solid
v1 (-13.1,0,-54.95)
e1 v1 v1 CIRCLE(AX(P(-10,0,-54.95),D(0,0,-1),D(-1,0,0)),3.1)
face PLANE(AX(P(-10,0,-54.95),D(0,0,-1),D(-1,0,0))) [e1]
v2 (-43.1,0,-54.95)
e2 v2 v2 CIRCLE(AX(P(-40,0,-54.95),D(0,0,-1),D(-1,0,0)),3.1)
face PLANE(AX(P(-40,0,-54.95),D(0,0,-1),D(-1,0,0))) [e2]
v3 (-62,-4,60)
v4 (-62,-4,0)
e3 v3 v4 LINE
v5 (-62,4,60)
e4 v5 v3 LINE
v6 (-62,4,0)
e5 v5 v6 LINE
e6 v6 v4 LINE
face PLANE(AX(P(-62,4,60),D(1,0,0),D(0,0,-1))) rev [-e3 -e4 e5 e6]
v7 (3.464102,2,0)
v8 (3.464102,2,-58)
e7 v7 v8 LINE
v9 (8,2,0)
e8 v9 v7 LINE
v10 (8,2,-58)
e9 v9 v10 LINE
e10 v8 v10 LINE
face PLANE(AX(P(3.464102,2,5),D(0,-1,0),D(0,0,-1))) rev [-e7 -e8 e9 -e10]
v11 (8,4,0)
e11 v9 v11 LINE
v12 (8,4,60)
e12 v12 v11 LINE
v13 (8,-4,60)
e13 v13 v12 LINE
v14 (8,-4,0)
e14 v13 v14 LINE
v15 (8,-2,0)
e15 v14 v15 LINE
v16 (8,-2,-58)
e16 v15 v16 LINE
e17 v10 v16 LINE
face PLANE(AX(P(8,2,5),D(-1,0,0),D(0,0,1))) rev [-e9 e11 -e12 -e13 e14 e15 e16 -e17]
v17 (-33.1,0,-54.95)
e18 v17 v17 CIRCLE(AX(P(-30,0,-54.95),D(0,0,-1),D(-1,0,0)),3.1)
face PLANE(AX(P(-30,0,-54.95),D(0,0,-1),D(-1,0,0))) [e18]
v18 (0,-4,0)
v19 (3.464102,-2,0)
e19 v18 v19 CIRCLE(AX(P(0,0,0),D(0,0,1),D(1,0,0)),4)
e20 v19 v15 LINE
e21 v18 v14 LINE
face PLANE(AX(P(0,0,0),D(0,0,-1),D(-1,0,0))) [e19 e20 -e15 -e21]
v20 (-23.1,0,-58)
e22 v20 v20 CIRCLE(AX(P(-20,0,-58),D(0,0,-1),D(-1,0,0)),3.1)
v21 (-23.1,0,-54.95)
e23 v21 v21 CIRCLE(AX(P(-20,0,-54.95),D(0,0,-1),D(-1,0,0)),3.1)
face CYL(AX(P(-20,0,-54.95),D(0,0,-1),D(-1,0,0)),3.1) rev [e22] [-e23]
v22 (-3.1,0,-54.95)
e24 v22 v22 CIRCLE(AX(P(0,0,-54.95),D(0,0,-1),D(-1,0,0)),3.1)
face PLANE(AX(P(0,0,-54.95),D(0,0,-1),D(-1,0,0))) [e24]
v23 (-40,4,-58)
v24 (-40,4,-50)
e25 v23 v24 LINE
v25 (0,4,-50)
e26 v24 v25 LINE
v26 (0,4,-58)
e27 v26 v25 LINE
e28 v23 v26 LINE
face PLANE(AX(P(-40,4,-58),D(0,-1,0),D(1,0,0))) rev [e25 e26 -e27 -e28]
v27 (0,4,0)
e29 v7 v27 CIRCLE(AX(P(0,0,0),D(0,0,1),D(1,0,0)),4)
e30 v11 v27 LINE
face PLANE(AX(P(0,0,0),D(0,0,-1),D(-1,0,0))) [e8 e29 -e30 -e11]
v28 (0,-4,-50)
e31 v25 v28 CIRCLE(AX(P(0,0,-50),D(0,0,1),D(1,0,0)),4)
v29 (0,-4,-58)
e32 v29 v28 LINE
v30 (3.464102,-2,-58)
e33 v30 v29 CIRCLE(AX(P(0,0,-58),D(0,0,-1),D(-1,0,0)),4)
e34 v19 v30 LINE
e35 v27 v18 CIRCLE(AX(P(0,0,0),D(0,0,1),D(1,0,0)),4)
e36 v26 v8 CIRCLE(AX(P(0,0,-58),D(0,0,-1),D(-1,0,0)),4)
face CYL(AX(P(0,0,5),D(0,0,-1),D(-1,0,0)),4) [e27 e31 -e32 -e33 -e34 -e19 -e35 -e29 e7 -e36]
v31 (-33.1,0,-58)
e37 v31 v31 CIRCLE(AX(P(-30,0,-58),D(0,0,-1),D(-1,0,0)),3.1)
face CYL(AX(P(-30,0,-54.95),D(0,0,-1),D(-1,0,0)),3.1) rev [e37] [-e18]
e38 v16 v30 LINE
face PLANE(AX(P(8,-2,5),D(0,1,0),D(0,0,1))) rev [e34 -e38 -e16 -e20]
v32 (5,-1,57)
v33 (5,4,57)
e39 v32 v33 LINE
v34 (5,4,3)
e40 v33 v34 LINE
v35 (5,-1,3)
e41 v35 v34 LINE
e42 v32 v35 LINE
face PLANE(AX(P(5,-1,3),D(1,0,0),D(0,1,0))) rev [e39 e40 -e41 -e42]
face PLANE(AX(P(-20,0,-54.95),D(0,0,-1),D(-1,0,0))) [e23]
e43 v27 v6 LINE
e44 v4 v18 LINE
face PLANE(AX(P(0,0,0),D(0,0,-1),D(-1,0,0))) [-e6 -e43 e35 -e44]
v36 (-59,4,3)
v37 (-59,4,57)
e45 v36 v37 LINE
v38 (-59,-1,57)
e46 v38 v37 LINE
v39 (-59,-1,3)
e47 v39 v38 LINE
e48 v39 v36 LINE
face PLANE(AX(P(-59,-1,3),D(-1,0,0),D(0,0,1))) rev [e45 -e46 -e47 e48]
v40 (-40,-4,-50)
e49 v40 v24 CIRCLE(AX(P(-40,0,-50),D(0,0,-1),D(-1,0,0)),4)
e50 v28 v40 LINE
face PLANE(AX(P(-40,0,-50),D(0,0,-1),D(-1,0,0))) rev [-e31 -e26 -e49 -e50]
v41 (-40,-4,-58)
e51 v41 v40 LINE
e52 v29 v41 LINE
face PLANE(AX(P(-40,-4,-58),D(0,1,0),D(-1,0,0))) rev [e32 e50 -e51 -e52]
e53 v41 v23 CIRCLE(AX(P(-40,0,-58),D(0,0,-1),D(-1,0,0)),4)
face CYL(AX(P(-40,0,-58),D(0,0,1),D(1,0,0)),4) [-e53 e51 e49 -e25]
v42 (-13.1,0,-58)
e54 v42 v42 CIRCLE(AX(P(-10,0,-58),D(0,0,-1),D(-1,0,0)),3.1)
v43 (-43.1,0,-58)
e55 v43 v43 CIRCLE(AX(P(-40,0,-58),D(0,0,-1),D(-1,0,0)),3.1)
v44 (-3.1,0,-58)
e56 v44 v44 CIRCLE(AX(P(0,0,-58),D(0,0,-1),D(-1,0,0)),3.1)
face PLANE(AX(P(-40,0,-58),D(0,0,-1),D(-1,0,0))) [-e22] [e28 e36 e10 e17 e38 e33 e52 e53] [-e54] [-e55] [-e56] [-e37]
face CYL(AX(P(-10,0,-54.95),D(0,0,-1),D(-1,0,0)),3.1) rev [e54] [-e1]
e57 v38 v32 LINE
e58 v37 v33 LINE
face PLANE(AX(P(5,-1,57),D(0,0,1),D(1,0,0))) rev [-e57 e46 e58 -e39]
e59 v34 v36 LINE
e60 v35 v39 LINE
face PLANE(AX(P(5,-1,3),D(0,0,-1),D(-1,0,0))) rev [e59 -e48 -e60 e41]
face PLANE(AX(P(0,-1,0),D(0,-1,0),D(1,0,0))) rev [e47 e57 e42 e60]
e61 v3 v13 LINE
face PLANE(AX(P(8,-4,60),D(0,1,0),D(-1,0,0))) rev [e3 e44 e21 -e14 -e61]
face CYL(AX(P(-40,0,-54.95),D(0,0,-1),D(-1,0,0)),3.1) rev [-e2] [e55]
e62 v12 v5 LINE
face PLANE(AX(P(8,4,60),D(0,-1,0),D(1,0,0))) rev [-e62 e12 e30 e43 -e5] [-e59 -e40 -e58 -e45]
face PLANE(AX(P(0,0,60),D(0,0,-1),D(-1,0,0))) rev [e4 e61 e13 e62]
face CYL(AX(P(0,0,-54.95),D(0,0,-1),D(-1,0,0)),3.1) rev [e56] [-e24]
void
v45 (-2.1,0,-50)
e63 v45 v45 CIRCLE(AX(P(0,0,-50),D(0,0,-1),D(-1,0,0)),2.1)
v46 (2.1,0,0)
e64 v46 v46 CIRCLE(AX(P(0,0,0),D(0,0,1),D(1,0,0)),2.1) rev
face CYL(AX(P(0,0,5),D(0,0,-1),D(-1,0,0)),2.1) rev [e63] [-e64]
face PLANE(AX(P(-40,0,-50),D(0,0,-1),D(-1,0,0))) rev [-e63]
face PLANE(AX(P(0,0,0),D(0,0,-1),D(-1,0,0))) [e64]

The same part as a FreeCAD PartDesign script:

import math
import FreeCAD as App
import Part
import Sketcher

V = App.Vector
Q = App.Units.Quantity


def add_polygon(sketch, points):
    """Adds a closed chain of lines whose ends are joined by coincident constraints."""
    first, n = sketch.GeometryCount, len(points)
    for a, b in zip(points, points[1:] + points[:1]):
        sketch.addGeometry(Part.LineSegment(App.Vector(*a, 0), App.Vector(*b, 0)), False)
    for i in range(n):
        sketch.addConstraint(Sketcher.Constraint("Coincident", first + i, 2, first + (i + 1) % n, 1))

doc = App.newDocument("Part")
params = doc.addObject("Spreadsheet::Sheet", "Params")
for row, (alias, value) in enumerate([
    ("sketch1_radius", "4 mm"),
    ("sketch1_height", "4 mm"),
    ("pad1_length", "5 mm"),
    ("pad1_length2", "50 mm"),
    ("sketch2_diameter", "4.2 mm"),
    ("pocket2_length", "5 mm"),
    ("sketch4_radius", "4 mm"),
    ("sketch4_width", "40 mm"),
    ("pad2_length", "8 mm"),
    ("sketch5_diameter", "6.2 mm"),
    ("pocket3_length", "3.05 mm"),
    ("sketch6_radius", "4 mm"),
    ("sketch6_height", "4 mm"),
    ("pad3_length", "8 mm"),
    ("sketch7_width", "70 mm"),
    ("sketch7_height", "8 mm"),
    ("pad4_length", "60 mm"),
    ("sketch8_width", "64 mm"),
    ("sketch8_height", "54 mm"),
    ("pocket4_length", "5 mm"),
], start=1):
    params.set(f"A{row}", alias)
    params.set(f"B{row}", "=" + value)
    params.setAlias(f"B{row}", alias)

body = doc.addObject("PartDesign::Body", "Body")

# Sketch on XY plane
sketch1 = body.newObject("Sketcher::SketchObject", "Sketch")
sketch1.AttachmentSupport = (doc.getObject("XY_Plane"), [""])
sketch1.MapMode = "FlatFace"
sketch1.addGeometry([
    Part.LineSegment(V(8, 2, 0), V(3.5, 2, 0)),
    Part.ArcOfCircle(Part.Circle(V(0, 0, 0), V(0, 0, 1), 4), math.radians(30), math.radians(330)),
    Part.LineSegment(V(3.5, -2, 0), V(8, -2, 0)),
    Part.LineSegment(V(8, -2, 0), V(8, 2, 0)),
], False)
sketch1.addConstraint([
    Sketcher.Constraint("Coincident", 0, 2, 1, 1),
    Sketcher.Constraint("Coincident", 1, 2, 2, 1),
    Sketcher.Constraint("Coincident", 2, 2, 3, 1),
    Sketcher.Constraint("Coincident", 3, 2, 0, 1),
    Sketcher.Constraint("Horizontal", 0),
    Sketcher.Constraint("Horizontal", 2),
    Sketcher.Constraint("Vertical", 3),
    Sketcher.Constraint("Coincident", 1, 3, -1, 1),
    Sketcher.Constraint("Vertical", 0, 2, 1, 2),
    Sketcher.Constraint("Radius", 1, Q("4 mm")),
    Sketcher.Constraint("DistanceY", 3, 1, 3, 2, Q("4 mm")),
    Sketcher.Constraint("DistanceX", -1, 1, 2, 2, Q("8 mm")),
])
sketch1.setExpression("Constraints[9]", "Params.sketch1_radius")
sketch1.setExpression("Constraints[10]", "Params.sketch1_height")
pad1 = body.newObject("PartDesign::Pad", "Pad")
pad1.Profile = sketch1
pad1.Type = "TwoLengths"
pad1.setExpression("Length", "Params.pad1_length")
pad1.setExpression("Length2", "Params.pad1_length2")

# Sketch on XY plane
sketch2 = body.newObject("Sketcher::SketchObject", "Sketch001")
sketch2.AttachmentSupport = (doc.getObject("XY_Plane"), [""])
sketch2.MapMode = "FlatFace"
sketch2.AttachmentOffset = App.Placement(V(0, 0, -50), App.Rotation())
sketch2.addGeometry(Part.Circle(V(0, 0, 0), V(0, 0, 1), 2.1), False)
sketch2.addConstraint([
    Sketcher.Constraint("Coincident", 0, 3, -1, 1),
    Sketcher.Constraint("Diameter", 0, Q("4.2 mm")),
])
sketch2.setExpression("Constraints[1]", "Params.sketch2_diameter")
pocket1 = body.newObject("PartDesign::Pocket", "Pocket")
pocket1.Profile = sketch2
pocket1.Type = "ThroughAll"
pocket1.Reversed = True

# Sketch on XY plane
sketch3 = body.newObject("Sketcher::SketchObject", "Sketch002")
sketch3.AttachmentSupport = (doc.getObject("XY_Plane"), [""])
sketch3.MapMode = "FlatFace"
sketch3.AttachmentOffset = App.Placement(V(0, 0, 5), App.Rotation())
sketch3.addGeometry(Part.Circle(V(0, 0, 0), V(0, 0, 1), 8), False)
sketch3.addConstraint([
    Sketcher.Constraint("Coincident", 0, 3, -1, 1),
    Sketcher.Constraint("Diameter", 0, Q("16.941223 mm")),
])
pocket2 = body.newObject("PartDesign::Pocket", "Pocket001")
pocket2.Profile = sketch3
pocket2.setExpression("Length", "Params.pocket2_length")

# Sketch on XY plane
sketch4 = body.newObject("Sketcher::SketchObject", "Sketch003")
sketch4.AttachmentSupport = (doc.getObject("XY_Plane"), [""])
sketch4.MapMode = "FlatFace"
sketch4.AttachmentOffset = App.Placement(V(0, 0, -58), App.Rotation())
sketch4.addGeometry([
    Part.LineSegment(V(0, -4, 0), V(-40, -4, 0)),
    Part.ArcOfCircle(Part.Circle(V(-40, 0, 0), V(0, 0, 1), 4), math.radians(90), math.radians(270)),
    Part.LineSegment(V(-40, 4, 0), V(0, 4, 0)),
    Part.ArcOfCircle(Part.Circle(V(0, 0, 0), V(0, 0, 1), 4), math.radians(-90), math.radians(90)),
], False)
sketch4.addConstraint([
    Sketcher.Constraint("Tangent", 0, 2, 1, 2),
    Sketcher.Constraint("Tangent", 1, 1, 2, 1),
    Sketcher.Constraint("Tangent", 2, 2, 3, 2),
    Sketcher.Constraint("Tangent", 3, 1, 0, 1),
    Sketcher.Constraint("Horizontal", 0),
    Sketcher.Constraint("Horizontal", 2),
    Sketcher.Constraint("Coincident", 3, 3, -1, 1),
    Sketcher.Constraint("Radius", 1, Q("4 mm")),
    Sketcher.Constraint("DistanceX", 0, 2, 0, 1, Q("40 mm")),
])
sketch4.setExpression("Constraints[7]", "Params.sketch4_radius")
sketch4.setExpression("Constraints[8]", "Params.sketch4_width")
pad2 = body.newObject("PartDesign::Pad", "Pad001")
pad2.Profile = sketch4
pad2.setExpression("Length", "Params.pad2_length")

# Sketch on XY plane
sketch5 = body.newObject("Sketcher::SketchObject", "Sketch004")
sketch5.AttachmentSupport = (doc.getObject("XY_Plane"), [""])
sketch5.MapMode = "FlatFace"
sketch5.AttachmentOffset = App.Placement(V(0, 0, -58), App.Rotation())
sketch5.addGeometry([
    Part.Circle(V(0, 0, 0), V(0, 0, 1), 3.1),  # 0
    Part.Circle(V(-40, 0, 0), V(0, 0, 1), 3.1),  # 1
    Part.Circle(V(-20, 0, 0), V(0, 0, 1), 3.1),  # 2
    Part.Circle(V(-10, 0, 0), V(0, 0, 1), 3.1),  # 3
    Part.Circle(V(-30, 0, 0), V(0, 0, 1), 3.1),  # 4
], False)
sketch5.addConstraint([
    Sketcher.Constraint("Coincident", 0, 3, -1, 1),
    Sketcher.Constraint("Equal", 0, 1),
    Sketcher.Constraint("Equal", 1, 2),
    Sketcher.Constraint("Equal", 2, 3),
    Sketcher.Constraint("Equal", 3, 4),
    Sketcher.Constraint("PointOnObject", 1, 3, -1),
    Sketcher.Constraint("PointOnObject", 2, 3, -1),
    Sketcher.Constraint("PointOnObject", 3, 3, -1),
    Sketcher.Constraint("PointOnObject", 4, 3, -1),
    Sketcher.Constraint("Diameter", 0, Q("6.2 mm")),
    Sketcher.Constraint("DistanceX", 1, 3, -1, 1, Q("40 mm")),
    Sketcher.Constraint("DistanceX", 2, 3, -1, 1, Q("20 mm")),
    Sketcher.Constraint("DistanceX", 3, 3, -1, 1, Q("10 mm")),
    Sketcher.Constraint("DistanceX", 4, 3, -1, 1, Q("30 mm")),
])
sketch5.setExpression("Constraints[9]", "Params.sketch5_diameter")
pocket3 = body.newObject("PartDesign::Pocket", "Pocket002")
pocket3.Profile = sketch5
pocket3.setExpression("Length", "Params.pocket3_length")
pocket3.Reversed = True

# Sketch on XY plane
sketch6 = body.newObject("Sketcher::SketchObject", "Sketch005")
sketch6.AttachmentSupport = (doc.getObject("XY_Plane"), [""])
sketch6.MapMode = "FlatFace"
sketch6.AttachmentOffset = App.Placement(V(0, 0, -58), App.Rotation())
sketch6.addGeometry([
    Part.LineSegment(V(3.5, 2, 0), V(8, 2, 0)),
    Part.LineSegment(V(8, 2, 0), V(8, -2, 0)),
    Part.LineSegment(V(8, -2, 0), V(3.5, -2, 0)),
    Part.ArcOfCircle(Part.Circle(V(0, 0, 0), V(0, 0, 1), 4), math.radians(-30), math.radians(30)),
], False)
sketch6.addConstraint([
    Sketcher.Constraint("Coincident", 0, 2, 1, 1),
    Sketcher.Constraint("Coincident", 1, 2, 2, 1),
    Sketcher.Constraint("Coincident", 2, 2, 3, 1),
    Sketcher.Constraint("Coincident", 3, 2, 0, 1),
    Sketcher.Constraint("Horizontal", 0),
    Sketcher.Constraint("Vertical", 1),
    Sketcher.Constraint("Horizontal", 2),
    Sketcher.Constraint("Coincident", 3, 3, -1, 1),
    Sketcher.Constraint("Vertical", 2, 2, 3, 2),
    Sketcher.Constraint("Radius", 3, Q("4 mm")),
    Sketcher.Constraint("DistanceY", 1, 2, 1, 1, Q("4 mm")),
    Sketcher.Constraint("DistanceX", -1, 1, 0, 2, Q("8 mm")),
])
sketch6.setExpression("Constraints[9]", "Params.sketch6_radius")
sketch6.setExpression("Constraints[10]", "Params.sketch6_height")
pad3 = body.newObject("PartDesign::Pad", "Pad002")
pad3.Profile = sketch6
pad3.setExpression("Length", "Params.pad3_length")

# Sketch on XY plane
sketch7 = body.newObject("Sketcher::SketchObject", "Sketch006")
sketch7.AttachmentSupport = (doc.getObject("XY_Plane"), [""])
sketch7.MapMode = "FlatFace"
add_polygon(sketch7, [(-62, 4), (-62, -4), (8, -4), (8, 4)])  # lines 0-3
sketch7.addConstraint([
    Sketcher.Constraint("Vertical", 0),
    Sketcher.Constraint("Horizontal", 1),
    Sketcher.Constraint("Vertical", 2),
    Sketcher.Constraint("Horizontal", 3),
    Sketcher.Constraint("DistanceX", 1, 1, 1, 2, Q("70 mm")),
    Sketcher.Constraint("DistanceY", 0, 2, 0, 1, Q("8 mm")),
    Sketcher.Constraint("DistanceX", 0, 2, -1, 1, Q("62 mm")),
    Sketcher.Constraint("DistanceY", 0, 2, -1, 1, Q("4 mm")),
])
sketch7.setExpression("Constraints[8]", "Params.sketch7_width")
sketch7.setExpression("Constraints[9]", "Params.sketch7_height")
pad4 = body.newObject("PartDesign::Pad", "Pad003")
pad4.Profile = sketch7
pad4.setExpression("Length", "Params.pad4_length")

# Sketch on XZ plane
sketch8 = body.newObject("Sketcher::SketchObject", "Sketch007")
sketch8.AttachmentSupport = (doc.getObject("XZ_Plane"), [""])
sketch8.MapMode = "FlatFace"
sketch8.AttachmentOffset = App.Placement(V(0, 0, -4), App.Rotation())
add_polygon(sketch8, [(-59, 3), (-59, 57), (5, 57), (5, 3)])  # lines 0-3
sketch8.addConstraint([
    Sketcher.Constraint("Vertical", 0),
    Sketcher.Constraint("Horizontal", 1),
    Sketcher.Constraint("Vertical", 2),
    Sketcher.Constraint("Horizontal", 3),
    Sketcher.Constraint("DistanceX", 1, 1, 1, 2, Q("64 mm")),
    Sketcher.Constraint("DistanceY", 0, 1, 0, 2, Q("54 mm")),
    Sketcher.Constraint("DistanceX", 0, 2, -1, 1, Q("59 mm")),
    Sketcher.Constraint("DistanceY", -1, 1, 0, 2, Q("57 mm")),
])
sketch8.setExpression("Constraints[8]", "Params.sketch8_width")
sketch8.setExpression("Constraints[9]", "Params.sketch8_height")
pocket4 = body.newObject("PartDesign::Pocket", "Pocket003")
pocket4.Profile = sketch8
pocket4.setExpression("Length", "Params.pocket4_length")
pocket4.Reversed = True

doc.recompute()
